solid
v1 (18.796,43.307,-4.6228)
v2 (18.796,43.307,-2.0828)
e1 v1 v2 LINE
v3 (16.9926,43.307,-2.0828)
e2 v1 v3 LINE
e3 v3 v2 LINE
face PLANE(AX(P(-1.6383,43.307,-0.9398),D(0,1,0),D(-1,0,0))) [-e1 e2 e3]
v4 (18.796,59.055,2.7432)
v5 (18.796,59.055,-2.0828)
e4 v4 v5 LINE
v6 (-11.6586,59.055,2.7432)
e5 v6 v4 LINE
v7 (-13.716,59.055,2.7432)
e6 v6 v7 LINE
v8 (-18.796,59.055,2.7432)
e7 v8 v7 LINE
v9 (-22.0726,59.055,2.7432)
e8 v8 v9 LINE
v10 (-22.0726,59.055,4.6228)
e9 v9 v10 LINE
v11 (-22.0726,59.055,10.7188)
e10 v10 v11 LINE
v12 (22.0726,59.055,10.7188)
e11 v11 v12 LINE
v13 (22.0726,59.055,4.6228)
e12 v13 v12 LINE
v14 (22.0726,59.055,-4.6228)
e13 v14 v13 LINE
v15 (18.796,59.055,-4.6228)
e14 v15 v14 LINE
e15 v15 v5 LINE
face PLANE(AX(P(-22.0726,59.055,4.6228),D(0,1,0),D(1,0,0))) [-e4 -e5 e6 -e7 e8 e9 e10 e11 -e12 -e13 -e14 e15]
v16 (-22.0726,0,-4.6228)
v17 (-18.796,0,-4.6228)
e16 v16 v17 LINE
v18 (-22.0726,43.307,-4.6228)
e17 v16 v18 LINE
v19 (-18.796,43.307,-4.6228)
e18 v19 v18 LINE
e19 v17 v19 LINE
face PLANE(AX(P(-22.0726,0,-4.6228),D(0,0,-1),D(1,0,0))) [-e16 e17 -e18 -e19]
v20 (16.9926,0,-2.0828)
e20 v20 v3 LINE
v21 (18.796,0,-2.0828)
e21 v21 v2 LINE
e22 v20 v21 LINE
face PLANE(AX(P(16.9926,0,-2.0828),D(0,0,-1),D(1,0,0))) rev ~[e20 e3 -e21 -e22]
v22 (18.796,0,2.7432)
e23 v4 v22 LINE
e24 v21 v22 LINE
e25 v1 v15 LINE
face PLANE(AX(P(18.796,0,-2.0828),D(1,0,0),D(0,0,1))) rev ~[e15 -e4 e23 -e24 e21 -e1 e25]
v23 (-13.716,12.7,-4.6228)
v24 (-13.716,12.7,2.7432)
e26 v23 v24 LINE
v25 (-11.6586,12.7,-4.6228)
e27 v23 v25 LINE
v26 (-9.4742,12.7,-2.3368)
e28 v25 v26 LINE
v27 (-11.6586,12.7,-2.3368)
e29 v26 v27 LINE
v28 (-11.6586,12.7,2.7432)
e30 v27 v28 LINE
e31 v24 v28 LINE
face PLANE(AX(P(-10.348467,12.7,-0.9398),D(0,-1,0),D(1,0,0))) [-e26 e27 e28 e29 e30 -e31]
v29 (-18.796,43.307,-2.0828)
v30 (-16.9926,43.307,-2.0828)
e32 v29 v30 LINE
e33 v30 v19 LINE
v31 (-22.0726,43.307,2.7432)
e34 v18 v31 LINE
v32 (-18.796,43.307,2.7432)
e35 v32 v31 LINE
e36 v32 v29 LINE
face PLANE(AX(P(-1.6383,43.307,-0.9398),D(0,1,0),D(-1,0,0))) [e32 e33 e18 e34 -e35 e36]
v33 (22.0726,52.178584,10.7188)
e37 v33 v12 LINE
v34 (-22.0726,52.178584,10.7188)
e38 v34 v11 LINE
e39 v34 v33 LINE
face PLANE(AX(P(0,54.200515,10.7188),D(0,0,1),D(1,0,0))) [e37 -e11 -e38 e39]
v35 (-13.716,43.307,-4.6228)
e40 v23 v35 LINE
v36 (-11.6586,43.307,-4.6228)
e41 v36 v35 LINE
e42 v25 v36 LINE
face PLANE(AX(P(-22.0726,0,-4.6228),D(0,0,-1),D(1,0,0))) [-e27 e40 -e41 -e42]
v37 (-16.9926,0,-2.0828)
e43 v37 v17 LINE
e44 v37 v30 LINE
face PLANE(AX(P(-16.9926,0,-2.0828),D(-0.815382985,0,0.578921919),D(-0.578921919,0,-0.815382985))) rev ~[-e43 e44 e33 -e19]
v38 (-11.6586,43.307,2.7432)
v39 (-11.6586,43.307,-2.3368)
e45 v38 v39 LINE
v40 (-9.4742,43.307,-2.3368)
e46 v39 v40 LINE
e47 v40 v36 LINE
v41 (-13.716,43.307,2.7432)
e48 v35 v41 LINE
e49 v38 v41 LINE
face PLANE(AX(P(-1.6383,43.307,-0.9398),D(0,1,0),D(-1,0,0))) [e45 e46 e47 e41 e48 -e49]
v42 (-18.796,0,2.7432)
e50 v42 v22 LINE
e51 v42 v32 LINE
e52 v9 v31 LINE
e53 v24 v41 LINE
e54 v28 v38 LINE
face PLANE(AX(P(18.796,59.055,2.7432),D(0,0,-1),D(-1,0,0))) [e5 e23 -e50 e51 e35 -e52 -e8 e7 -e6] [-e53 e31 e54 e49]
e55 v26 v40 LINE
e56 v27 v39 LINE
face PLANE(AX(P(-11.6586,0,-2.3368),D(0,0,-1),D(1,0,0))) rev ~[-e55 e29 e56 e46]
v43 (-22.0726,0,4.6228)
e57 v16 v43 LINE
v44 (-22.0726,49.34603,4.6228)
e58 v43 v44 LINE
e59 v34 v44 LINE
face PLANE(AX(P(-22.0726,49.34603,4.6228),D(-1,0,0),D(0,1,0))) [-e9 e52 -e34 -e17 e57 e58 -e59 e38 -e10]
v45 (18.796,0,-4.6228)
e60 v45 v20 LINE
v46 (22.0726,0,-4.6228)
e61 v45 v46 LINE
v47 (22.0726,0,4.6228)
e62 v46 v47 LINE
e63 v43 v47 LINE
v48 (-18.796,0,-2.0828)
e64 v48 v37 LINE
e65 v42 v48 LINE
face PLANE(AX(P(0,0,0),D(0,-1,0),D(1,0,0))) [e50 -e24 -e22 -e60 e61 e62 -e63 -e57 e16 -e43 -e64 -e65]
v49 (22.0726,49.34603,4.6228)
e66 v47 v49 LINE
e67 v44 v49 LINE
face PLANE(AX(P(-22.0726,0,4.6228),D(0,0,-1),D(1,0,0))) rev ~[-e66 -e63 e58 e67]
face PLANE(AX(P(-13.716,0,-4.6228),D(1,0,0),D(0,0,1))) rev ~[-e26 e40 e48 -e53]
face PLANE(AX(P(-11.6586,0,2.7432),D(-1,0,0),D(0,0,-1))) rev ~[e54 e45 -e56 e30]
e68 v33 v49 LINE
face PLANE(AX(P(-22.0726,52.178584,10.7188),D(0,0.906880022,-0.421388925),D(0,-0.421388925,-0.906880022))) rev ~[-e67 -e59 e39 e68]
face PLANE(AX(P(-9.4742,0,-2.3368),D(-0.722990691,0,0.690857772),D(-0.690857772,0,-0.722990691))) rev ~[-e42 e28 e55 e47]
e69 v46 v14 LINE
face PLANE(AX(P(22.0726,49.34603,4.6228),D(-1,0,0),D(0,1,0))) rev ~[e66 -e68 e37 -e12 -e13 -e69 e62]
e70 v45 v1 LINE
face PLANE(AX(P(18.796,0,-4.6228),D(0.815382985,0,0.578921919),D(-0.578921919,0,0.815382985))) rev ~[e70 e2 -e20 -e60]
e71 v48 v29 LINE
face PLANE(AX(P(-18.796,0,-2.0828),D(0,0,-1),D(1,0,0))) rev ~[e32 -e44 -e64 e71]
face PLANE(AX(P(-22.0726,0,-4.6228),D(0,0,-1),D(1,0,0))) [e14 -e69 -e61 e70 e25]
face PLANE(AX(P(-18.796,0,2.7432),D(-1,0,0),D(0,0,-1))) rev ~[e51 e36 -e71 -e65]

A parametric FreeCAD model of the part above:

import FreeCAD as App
import Part
import Sketcher
from FreeCAD import Vector
Q = App.Units.Quantity


def add_polygon(sketch, points):
    """Adds a closed chain of lines whose ends are joined by coincident constraints."""
    first, n = sketch.GeometryCount, len(points)
    for a, b in zip(points, points[1:] + points[:1]):
        sketch.addGeometry(Part.LineSegment(App.Vector(*a, 0), App.Vector(*b, 0)), False)
    for i in range(n):
        sketch.addConstraint(Sketcher.Constraint("Coincident", first + i, 2, first + (i + 1) % n, 1))

doc = App.newDocument("Part")
body = doc.addObject("PartDesign::Body", "Body")

sketch1 = body.newObject("Sketcher::SketchObject", "Sketch")
sketch1.AttachmentSupport = (doc.getObject("XZ_Plane"), [""])
sketch1.MapMode = "FlatFace"
add_polygon(sketch1, [(-22.0726, 4.6228), (-22.0726, -4.6228), (22.0726, -4.6228), (22.0726, 4.6228)])
sketch1.addConstraint([
    Sketcher.Constraint("Vertical", 0),
    Sketcher.Constraint("Horizontal", 1),
    Sketcher.Constraint("Vertical", 2),
    Sketcher.Constraint("Horizontal", 3),
    Sketcher.Constraint("Symmetric", 0, 2, 2, 2, -1, 1),
    Sketcher.Constraint("DistanceX", 1, 1, 1, 2, Q("1.738 in")),
    Sketcher.Constraint("DistanceY", 0, 2, 0, 1, Q("0.364 in")),
])
pad1 = body.newObject("PartDesign::Pad", "Pad")
pad1.Profile = sketch1
pad1.Length = Q("2.325 in")
pad1.Reversed = True

sketch2 = body.newObject("Sketcher::SketchObject", "Sketch001")
sketch2.AttachmentSupport = (doc.getObject("XY_Plane"), [""])
sketch2.MapMode = "FlatFace"
sketch2.AttachmentOffset = App.Placement(Vector(0, 0, 0.182 * 25.4), App.Rotation())
add_polygon(sketch2, [(-22.0726, 59.055), (-22.0726, 49.34603), (22.0726, 49.34603), (22.0726, 59.055)])
sketch2.addConstraint([
    Sketcher.Constraint("Vertical", 0),
    Sketcher.Constraint("Horizontal", 1),
    Sketcher.Constraint("Vertical", 2),
    Sketcher.Constraint("Horizontal", 3),
    Sketcher.Constraint("DistanceX", 1, 1, 1, 2, Q("1.738 in")),
    Sketcher.Constraint("DistanceX", 0, 2, -1, 1, Q("0.869 in")),
    Sketcher.Constraint("DistanceY", -1, 1, 2, 2, Q("2.325 in")),
    Sketcher.Constraint("DistanceY", 0, 2, 0, 1, 9.70897),
])
pad2 = body.newObject("PartDesign::Pad", "Pad001")
pad2.Profile = sketch2
pad2.Length = Q("0.24 in")

sketch3 = body.newObject("Sketcher::SketchObject", "Sketch002")
sketch3.AttachmentSupport = (doc.getObject("XZ_Plane"), [""])
sketch3.MapMode = "FlatFace"
add_polygon(sketch3, [(-9.4742, -2.3368), (-11.6586, -4.6228), (18.796, -4.6228), (16.9926, -2.0828), (18.796, -2.0828), (18.796, 2.7432), (-11.6586, 2.7432), (-11.6586, -2.3368)])
sketch3.addConstraint([
    Sketcher.Constraint("Horizontal", 1),
    Sketcher.Constraint("Horizontal", 3),
    Sketcher.Constraint("Vertical", 4),
    Sketcher.Constraint("Horizontal", 5),
    Sketcher.Constraint("Vertical", 6),
    Sketcher.Constraint("Horizontal", 7),
    Sketcher.Constraint("Vertical", 1, 2, 3, 2),
    Sketcher.Constraint("Vertical", 0, 2, 5, 2),
    Sketcher.Constraint("DistanceY", 6, 2, 6, 1, Q("0.2 in")),
    Sketcher.Constraint("DistanceY", 4, 1, 4, 2, Q("0.19 in")),
    Sketcher.Constraint("DistanceY", 1, 2, 2, 2, Q("0.1 in")),
    Sketcher.Constraint("DistanceX", 1, 1, 1, 2, Q("1.199 in")),
    Sketcher.Constraint("DistanceX", 3, 1, 3, 2, Q("0.071 in")),
    Sketcher.Constraint("DistanceX", 7, 1, 7, 2, Q("0.086 in")),
    Sketcher.Constraint("DistanceX", -1, 1, 1, 2, Q("0.74 in")),
    Sketcher.Constraint("DistanceY", 0, 2, -1, 1, Q("0.182 in")),
])
pocket1 = body.newObject("PartDesign::Pocket", "Pocket")
pocket1.Profile = sketch3
pocket1.Length = Q("3.19 in")

sketch4 = body.newObject("Sketcher::SketchObject", "Sketch003")
sketch4.AttachmentSupport = (doc.getObject("XZ_Plane"), [""])
sketch4.MapMode = "FlatFace"
add_polygon(sketch4, [(-18.796, -4.6228), (-13.716, -4.6228), (-13.716, 2.7432), (-18.796, 2.7432), (-18.796, -2.0828), (-16.9926, -2.0828)])
add_polygon(sketch4, [(-9.4742, -2.3368), (-11.6586, -4.6228), (18.796, -4.6228), (16.9926, -2.0828), (18.796, -2.0828), (18.796, 2.7432), (-11.6586, 2.7432), (-11.6586, -2.3368)])
sketch4.addConstraint([
    Sketcher.Constraint("Horizontal", 0),
    Sketcher.Constraint("Vertical", 1),
    Sketcher.Constraint("Horizontal", 2),
    Sketcher.Constraint("Vertical", 3),
    Sketcher.Constraint("Horizontal", 4),
    Sketcher.Constraint("Horizontal", 7),
    Sketcher.Constraint("Horizontal", 9),
    Sketcher.Constraint("Vertical", 10),
    Sketcher.Constraint("Horizontal", 11),
    Sketcher.Constraint("Vertical", 12),
    Sketcher.Constraint("Horizontal", 13),
    Sketcher.Constraint("Symmetric", 5, 2, 7, 2, -2),
    Sketcher.Constraint("Symmetric", 4, 2, 8, 2, -2),
    Sketcher.Constraint("Symmetric", 2, 2, 10, 2, -2),
    Sketcher.Constraint("Vertical", 3, 2, 5, 2),
    Sketcher.Constraint("Vertical", 6, 2, 11, 2),
    Sketcher.Constraint("Equal", 2, 12),
    Sketcher.Constraint("DistanceX", 0, 1, 0, 2, Q("0.2 in")),
    Sketcher.Constraint("DistanceY", 1, 1, 1, 2, Q("0.29 in")),
    Sketcher.Constraint("DistanceY", 3, 2, 3, 1, Q("0.19 in")),
    Sketcher.Constraint("DistanceX", 4, 1, 4, 2, Q("0.071 in")),
    Sketcher.Constraint("DistanceX", 7, 1, 7, 2, Q("1.199 in")),
    Sketcher.Constraint("DistanceX", 13, 1, 13, 2, Q("0.086 in")),
    Sketcher.Constraint("DistanceX", 0, 2, -1, 1, Q("0.54 in")),
    Sketcher.Constraint("DistanceY", 0, 2, -1, 1, Q("0.182 in")),
])
pocket2 = body.newObject("PartDesign::Pocket", "Pocket001")
pocket2.Profile = sketch4
pocket2.Length = Q("3.24 in")

sketch5 = body.newObject("Sketcher::SketchObject", "Sketch004")
sketch5.AttachmentSupport = (doc.getObject("YZ_Plane"), [""])
sketch5.MapMode = "FlatFace"
sketch5.AttachmentOffset = App.Placement(Vector(0, 0, -0.869 * 25.4), App.Rotation())
add_polygon(sketch5, [(52.178584, 10.7188), (49.34603, 4.6228), (49.34603, 10.7188)])
sketch5.addConstraint([
    Sketcher.Constraint("Vertical", 1),
    Sketcher.Constraint("Horizontal", 2),
    Sketcher.Constraint("DistanceY", 1, 1, 1, 2, Q("0.24 in")),
    Sketcher.Constraint("DistanceY", -1, 1, 0, 2, Q("0.182 in")),
    Sketcher.Constraint("DistanceX", 2, 1, 2, 2, 2.832554),
    Sketcher.Constraint("DistanceX", -1, 1, 0, 2, 49.34603),
])
pocket3 = body.newObject("PartDesign::Pocket", "Pocket002")
pocket3.Profile = sketch5
pocket3.Length = Q("2.66 in")
pocket3.Reversed = True

sketch6 = body.newObject("Sketcher::SketchObject", "Sketch005")
sketch6.AttachmentSupport = (doc.getObject("XZ_Plane"), [""])
sketch6.MapMode = "FlatFace"
sketch6.AttachmentOffset = App.Placement(Vector(0, 0, -2.325 * 25.4), App.Rotation())
add_polygon(sketch6, [(18.796, 2.7432), (18.796, -4.6228), (-22.0726, -4.6228), (-22.0726, 2.7432)])
sketch6.addConstraint([
    Sketcher.Constraint("Vertical", 0),
    Sketcher.Constraint("Horizontal", 1),
    Sketcher.Constraint("Vertical", 2),
    Sketcher.Constraint("Horizontal", 3),
    Sketcher.Constraint("DistanceY", 0, 2, 0, 1, Q("0.29 in")),
    Sketcher.Constraint("DistanceX", 1, 2, 1, 1, Q("1.609 in")),
    Sketcher.Constraint("DistanceX", -1, 1, 0, 2, Q("0.74 in")),
    Sketcher.Constraint("DistanceY", 0, 2, -1, 1, Q("0.182 in")),
])
pocket4 = body.newObject("PartDesign::Pocket", "Pocket003")
pocket4.Profile = sketch6
pocket4.Length = Q("0.62 in")
pocket4.Reversed = True

sketch7 = body.newObject("Sketcher::SketchObject", "Sketch006")
sketch7.AttachmentSupport = (doc.getObject("XZ_Plane"), [""])
sketch7.MapMode = "FlatFace"
add_polygon(sketch7, [(-13.716, 2.7432), (-13.716, -4.6228), (-6.980935, -4.6228), (-6.980935, 2.7432)])
sketch7.addConstraint([
    Sketcher.Constraint("Vertical", 0),
    Sketcher.Constraint("Horizontal", 1),
    Sketcher.Constraint("Vertical", 2),
    Sketcher.Constraint("Horizontal", 3),
    Sketcher.Constraint("DistanceY", 0, 2, 0, 1, Q("0.29 in")),
    Sketcher.Constraint("DistanceX", 0, 2, -1, 1, Q("0.54 in")),
    Sketcher.Constraint("DistanceY", 0, 2, -1, 1, Q("0.182 in")),
    Sketcher.Constraint("DistanceX", 1, 1, 1, 2, 6.735065),
])
pocket5 = body.newObject("PartDesign::Pocket", "Pocket004")
pocket5.Profile = sketch7
pocket5.Length = Q("0.5 in")
body2 = doc.addObject("PartDesign::Body", "Body001")
doc.recompute()

mirroring = doc.addObject("Part::Mirroring", "Mirroring")
mirroring.Source = body
mirroring.Base = Vector(0, 0, 0)
mirroring.Normal = Vector(1, 0, 0)
body2.BaseFeature = mirroring
doc.recompute()
body3 = doc.addObject("PartDesign::Body", "Body002")
doc.recompute()

mirroring2 = doc.addObject("Part::Mirroring", "Mirroring001")
mirroring2.Source = body2
mirroring2.Base = Vector(0, 0, 0)
mirroring2.Normal = Vector(1, 0, 0)
body3.BaseFeature = mirroring2
doc.recompute()
body.Visibility = False
body2.Visibility = False
mirroring.Visibility = False
mirroring2.Visibility = False

doc.recompute()
